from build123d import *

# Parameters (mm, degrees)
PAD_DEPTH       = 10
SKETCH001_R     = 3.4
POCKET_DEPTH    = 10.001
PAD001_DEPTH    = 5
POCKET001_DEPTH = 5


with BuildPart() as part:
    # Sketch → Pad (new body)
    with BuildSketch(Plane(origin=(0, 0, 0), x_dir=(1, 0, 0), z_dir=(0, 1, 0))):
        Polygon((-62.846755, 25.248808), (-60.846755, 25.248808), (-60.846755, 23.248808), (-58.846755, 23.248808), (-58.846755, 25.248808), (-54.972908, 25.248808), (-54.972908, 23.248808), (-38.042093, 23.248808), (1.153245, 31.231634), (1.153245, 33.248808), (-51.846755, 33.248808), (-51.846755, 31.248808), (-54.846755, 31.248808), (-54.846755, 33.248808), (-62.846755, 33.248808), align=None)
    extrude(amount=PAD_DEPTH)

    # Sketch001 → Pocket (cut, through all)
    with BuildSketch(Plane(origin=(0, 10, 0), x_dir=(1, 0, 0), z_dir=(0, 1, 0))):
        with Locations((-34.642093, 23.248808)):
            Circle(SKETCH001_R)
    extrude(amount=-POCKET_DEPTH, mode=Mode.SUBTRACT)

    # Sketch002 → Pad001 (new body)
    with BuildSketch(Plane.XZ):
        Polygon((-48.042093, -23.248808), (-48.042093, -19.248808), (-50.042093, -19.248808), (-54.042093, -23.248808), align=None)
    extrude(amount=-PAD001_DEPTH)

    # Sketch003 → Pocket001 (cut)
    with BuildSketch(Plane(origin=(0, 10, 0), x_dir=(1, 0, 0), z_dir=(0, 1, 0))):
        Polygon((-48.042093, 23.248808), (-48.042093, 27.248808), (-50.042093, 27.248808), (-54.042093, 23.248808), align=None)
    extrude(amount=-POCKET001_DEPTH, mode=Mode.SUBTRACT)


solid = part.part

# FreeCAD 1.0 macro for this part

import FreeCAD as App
import Part
import Sketcher

doc = App.newDocument("Part")
body = doc.addObject("PartDesign::Body", "Body")

sketch1 = body.newObject("Sketcher::SketchObject", "Sketch")
sketch1.AttachmentSupport = (doc.getObject("XZ_Plane"), [""])
sketch1.MapMode = "FlatFace"
sketch1.addGeometry([
    Part.LineSegment(App.Vector(-62.8, -25.2, 0), App.Vector(-60.8, -25.2, 0)),
    Part.LineSegment(App.Vector(-60.8, -25.2, 0), App.Vector(-60.8, -23.2, 0)),
    Part.LineSegment(App.Vector(-60.8, -23.2, 0), App.Vector(-58.8, -23.2, 0)),
    Part.LineSegment(App.Vector(-58.8, -23.2, 0), App.Vector(-58.8, -25.2, 0)),
    Part.LineSegment(App.Vector(-58.8, -25.2, 0), App.Vector(-55, -25.2, 0)),
    Part.LineSegment(App.Vector(-55, -25.2, 0), App.Vector(-55, -23.2, 0)),
    Part.LineSegment(App.Vector(-55, -23.2, 0), App.Vector(-38, -23.2, 0)),
    Part.LineSegment(App.Vector(-38, -23.2, 0), App.Vector(1.2, -31.2, 0)),
    Part.LineSegment(App.Vector(1.2, -31.2, 0), App.Vector(1.2, -33.2, 0)),
    Part.LineSegment(App.Vector(1.2, -33.2, 0), App.Vector(-51.8, -33.2, 0)),
    Part.LineSegment(App.Vector(-51.8, -33.2, 0), App.Vector(-51.8, -31.2, 0)),
    Part.LineSegment(App.Vector(-51.8, -31.2, 0), App.Vector(-54.8, -31.2, 0)),
    Part.LineSegment(App.Vector(-54.8, -31.2, 0), App.Vector(-54.8, -33.2, 0)),
    Part.LineSegment(App.Vector(-54.8, -33.2, 0), App.Vector(-62.8, -33.2, 0)),
    Part.LineSegment(App.Vector(-62.8, -33.2, 0), App.Vector(-62.8, -25.2, 0)),
], False)
sketch1.addConstraint([
    Sketcher.Constraint("Coincident", 0, 2, 1, 1),
    Sketcher.Constraint("Coincident", 1, 2, 2, 1),
    Sketcher.Constraint("Coincident", 2, 2, 3, 1),
    Sketcher.Constraint("Coincident", 3, 2, 4, 1),
    Sketcher.Constraint("Coincident", 4, 2, 5, 1),
    Sketcher.Constraint("Coincident", 5, 2, 6, 1),
    Sketcher.Constraint("Coincident", 6, 2, 7, 1),
    Sketcher.Constraint("Coincident", 7, 2, 8, 1),
    Sketcher.Constraint("Coincident", 8, 2, 9, 1),
    Sketcher.Constraint("Coincident", 9, 2, 10, 1),
    Sketcher.Constraint("Coincident", 10, 2, 11, 1),
    Sketcher.Constraint("Coincident", 11, 2, 12, 1),
    Sketcher.Constraint("Coincident", 12, 2, 13, 1),
    Sketcher.Constraint("Coincident", 13, 2, 14, 1),
    Sketcher.Constraint("Coincident", 14, 2, 0, 1),
    Sketcher.Constraint("Horizontal", 0),
    Sketcher.Constraint("Vertical", 1),
    Sketcher.Constraint("Horizontal", 2),
    Sketcher.Constraint("Vertical", 3),
    Sketcher.Constraint("Horizontal", 4),
    Sketcher.Constraint("Vertical", 5),
    Sketcher.Constraint("Horizontal", 6),
    Sketcher.Constraint("Vertical", 8),
    Sketcher.Constraint("Horizontal", 9),
    Sketcher.Constraint("Vertical", 10),
    Sketcher.Constraint("Horizontal", 11),
    Sketcher.Constraint("Vertical", 12),
    Sketcher.Constraint("Horizontal", 13),
    Sketcher.Constraint("Vertical", 14),
    Sketcher.Constraint("Horizontal", 0, 2, 3, 2),
    Sketcher.Constraint("Horizontal", 2, 2, 5, 2),
    Sketcher.Constraint("Horizontal", 9, 2, 12, 2),
    Sketcher.Constraint("Equal", 0, 2),
    Sketcher.Constraint("Equal", 2, 1),
    Sketcher.Constraint("Equal", 5, 10),
    Sketcher.Constraint("Equal", 13, 14),
    Sketcher.Constraint("DistanceX", 0, 1, 0, 2, 2.0),
    Sketcher.Constraint("DistanceX", 9, 2, 9, 1, 53.0),
    Sketcher.Constraint("DistanceX", 11, 2, 11, 1, 3.0),
    Sketcher.Constraint("DistanceX", 13, 2, 13, 1, 8.0),
    Sketcher.Constraint("Distance", 7, 40.0),
    Sketcher.Constraint("DistanceX", 4, 1, 4, 2, 3.873847),
    Sketcher.Constraint("DistanceX", 6, 1, 6, 2, 16.930815),
    Sketcher.Constraint("DistanceY", 0, 2, -1, 1, 25.248808),
    Sketcher.Constraint("DistanceX", 0, 2, -1, 1, 60.846755),
])
pad1 = body.newObject("PartDesign::Pad", "Pad")
pad1.Profile = sketch1
pad1.Length = 10
pad1.Reversed = True

sketch2 = body.newObject("Sketcher::SketchObject", "Sketch001")
sketch2.AttachmentSupport = (doc.getObject("XZ_Plane"), [""])
sketch2.MapMode = "FlatFace"
sketch2.AttachmentOffset = App.Placement(App.Vector(0, 0, -10), App.Rotation())
sketch2.addGeometry(Part.Circle(App.Vector(-34.6, -23.2, 0), App.Vector(0, 0, 1), 3.4), False)
sketch2.addConstraint([
    Sketcher.Constraint("Diameter", 0, 6.8),
    Sketcher.Constraint("DistanceY", 0, 3, -1, 1, 23.248808),
    Sketcher.Constraint("DistanceX", 0, 3, -1, 1, 34.642093),
])
pocket1 = body.newObject("PartDesign::Pocket", "Pocket")
pocket1.Profile = sketch2
pocket1.Type = "ThroughAll"
pocket1.Reversed = True

sketch3 = body.newObject("Sketcher::SketchObject", "Sketch002")
sketch3.AttachmentSupport = (doc.getObject("XZ_Plane"), [""])
sketch3.MapMode = "FlatFace"
sketch3.addGeometry([
    Part.LineSegment(App.Vector(-48, -23.2, 0), App.Vector(-48, -19.2, 0)),
    Part.LineSegment(App.Vector(-48, -19.2, 0), App.Vector(-50, -19.2, 0)),
    Part.LineSegment(App.Vector(-50, -19.2, 0), App.Vector(-54, -23.2, 0)),
    Part.LineSegment(App.Vector(-54, -23.2, 0), App.Vector(-48, -23.2, 0)),
], False)
sketch3.addConstraint([
    Sketcher.Constraint("Coincident", 0, 2, 1, 1),
    Sketcher.Constraint("Coincident", 1, 2, 2, 1),
    Sketcher.Constraint("Coincident", 2, 2, 3, 1),
    Sketcher.Constraint("Coincident", 3, 2, 0, 1),
    Sketcher.Constraint("Vertical", 0),
    Sketcher.Constraint("Horizontal", 1),
    Sketcher.Constraint("Horizontal", 3),
    Sketcher.Constraint("DistanceX", 1, 2, 1, 1, 2.0),
    Sketcher.Constraint("DistanceX", 3, 1, 3, 2, 6.0),
    Sketcher.Constraint("DistanceY", 0, 1, 0, 2, 4.0),
    Sketcher.Constraint("DistanceY", 0, 2, -1, 1, 19.248808),
    Sketcher.Constraint("DistanceX", 0, 2, -1, 1, 48.042093),
])
pad2 = body.newObject("PartDesign::Pad", "Pad001")
pad2.Profile = sketch3
pad2.Length = 5
pad2.Reversed = True

sketch4 = body.newObject("Sketcher::SketchObject", "Sketch003")
sketch4.AttachmentSupport = (doc.getObject("XZ_Plane"), [""])
sketch4.MapMode = "FlatFace"
sketch4.AttachmentOffset = App.Placement(App.Vector(0, 0, -10), App.Rotation())
sketch4.addGeometry([
    Part.LineSegment(App.Vector(-48, -23.2, 0), App.Vector(-48, -27.2, 0)),
    Part.LineSegment(App.Vector(-48, -27.2, 0), App.Vector(-50, -27.2, 0)),
    Part.LineSegment(App.Vector(-50, -27.2, 0), App.Vector(-54, -23.2, 0)),
    Part.LineSegment(App.Vector(-54, -23.2, 0), App.Vector(-48, -23.2, 0)),
], False)
sketch4.addConstraint([
    Sketcher.Constraint("Coincident", 0, 2, 1, 1),
    Sketcher.Constraint("Coincident", 1, 2, 2, 1),
    Sketcher.Constraint("Coincident", 2, 2, 3, 1),
    Sketcher.Constraint("Coincident", 3, 2, 0, 1),
    Sketcher.Constraint("Vertical", 0),
    Sketcher.Constraint("Horizontal", 1),
    Sketcher.Constraint("Horizontal", 3),
    Sketcher.Constraint("DistanceX", 1, 2, 1, 1, 2.0),
    Sketcher.Constraint("DistanceX", 3, 1, 3, 2, 6.0),
    Sketcher.Constraint("DistanceY", 0, 2, 0, 1, 4.0),
    Sketcher.Constraint("DistanceY", 0, 2, -1, 1, 27.248808),
    Sketcher.Constraint("DistanceX", 0, 2, -1, 1, 48.042093),
])
pocket2 = body.newObject("PartDesign::Pocket", "Pocket001")
pocket2.Profile = sketch4
pocket2.Length = 5
pocket2.Reversed = True

doc.recompute()
